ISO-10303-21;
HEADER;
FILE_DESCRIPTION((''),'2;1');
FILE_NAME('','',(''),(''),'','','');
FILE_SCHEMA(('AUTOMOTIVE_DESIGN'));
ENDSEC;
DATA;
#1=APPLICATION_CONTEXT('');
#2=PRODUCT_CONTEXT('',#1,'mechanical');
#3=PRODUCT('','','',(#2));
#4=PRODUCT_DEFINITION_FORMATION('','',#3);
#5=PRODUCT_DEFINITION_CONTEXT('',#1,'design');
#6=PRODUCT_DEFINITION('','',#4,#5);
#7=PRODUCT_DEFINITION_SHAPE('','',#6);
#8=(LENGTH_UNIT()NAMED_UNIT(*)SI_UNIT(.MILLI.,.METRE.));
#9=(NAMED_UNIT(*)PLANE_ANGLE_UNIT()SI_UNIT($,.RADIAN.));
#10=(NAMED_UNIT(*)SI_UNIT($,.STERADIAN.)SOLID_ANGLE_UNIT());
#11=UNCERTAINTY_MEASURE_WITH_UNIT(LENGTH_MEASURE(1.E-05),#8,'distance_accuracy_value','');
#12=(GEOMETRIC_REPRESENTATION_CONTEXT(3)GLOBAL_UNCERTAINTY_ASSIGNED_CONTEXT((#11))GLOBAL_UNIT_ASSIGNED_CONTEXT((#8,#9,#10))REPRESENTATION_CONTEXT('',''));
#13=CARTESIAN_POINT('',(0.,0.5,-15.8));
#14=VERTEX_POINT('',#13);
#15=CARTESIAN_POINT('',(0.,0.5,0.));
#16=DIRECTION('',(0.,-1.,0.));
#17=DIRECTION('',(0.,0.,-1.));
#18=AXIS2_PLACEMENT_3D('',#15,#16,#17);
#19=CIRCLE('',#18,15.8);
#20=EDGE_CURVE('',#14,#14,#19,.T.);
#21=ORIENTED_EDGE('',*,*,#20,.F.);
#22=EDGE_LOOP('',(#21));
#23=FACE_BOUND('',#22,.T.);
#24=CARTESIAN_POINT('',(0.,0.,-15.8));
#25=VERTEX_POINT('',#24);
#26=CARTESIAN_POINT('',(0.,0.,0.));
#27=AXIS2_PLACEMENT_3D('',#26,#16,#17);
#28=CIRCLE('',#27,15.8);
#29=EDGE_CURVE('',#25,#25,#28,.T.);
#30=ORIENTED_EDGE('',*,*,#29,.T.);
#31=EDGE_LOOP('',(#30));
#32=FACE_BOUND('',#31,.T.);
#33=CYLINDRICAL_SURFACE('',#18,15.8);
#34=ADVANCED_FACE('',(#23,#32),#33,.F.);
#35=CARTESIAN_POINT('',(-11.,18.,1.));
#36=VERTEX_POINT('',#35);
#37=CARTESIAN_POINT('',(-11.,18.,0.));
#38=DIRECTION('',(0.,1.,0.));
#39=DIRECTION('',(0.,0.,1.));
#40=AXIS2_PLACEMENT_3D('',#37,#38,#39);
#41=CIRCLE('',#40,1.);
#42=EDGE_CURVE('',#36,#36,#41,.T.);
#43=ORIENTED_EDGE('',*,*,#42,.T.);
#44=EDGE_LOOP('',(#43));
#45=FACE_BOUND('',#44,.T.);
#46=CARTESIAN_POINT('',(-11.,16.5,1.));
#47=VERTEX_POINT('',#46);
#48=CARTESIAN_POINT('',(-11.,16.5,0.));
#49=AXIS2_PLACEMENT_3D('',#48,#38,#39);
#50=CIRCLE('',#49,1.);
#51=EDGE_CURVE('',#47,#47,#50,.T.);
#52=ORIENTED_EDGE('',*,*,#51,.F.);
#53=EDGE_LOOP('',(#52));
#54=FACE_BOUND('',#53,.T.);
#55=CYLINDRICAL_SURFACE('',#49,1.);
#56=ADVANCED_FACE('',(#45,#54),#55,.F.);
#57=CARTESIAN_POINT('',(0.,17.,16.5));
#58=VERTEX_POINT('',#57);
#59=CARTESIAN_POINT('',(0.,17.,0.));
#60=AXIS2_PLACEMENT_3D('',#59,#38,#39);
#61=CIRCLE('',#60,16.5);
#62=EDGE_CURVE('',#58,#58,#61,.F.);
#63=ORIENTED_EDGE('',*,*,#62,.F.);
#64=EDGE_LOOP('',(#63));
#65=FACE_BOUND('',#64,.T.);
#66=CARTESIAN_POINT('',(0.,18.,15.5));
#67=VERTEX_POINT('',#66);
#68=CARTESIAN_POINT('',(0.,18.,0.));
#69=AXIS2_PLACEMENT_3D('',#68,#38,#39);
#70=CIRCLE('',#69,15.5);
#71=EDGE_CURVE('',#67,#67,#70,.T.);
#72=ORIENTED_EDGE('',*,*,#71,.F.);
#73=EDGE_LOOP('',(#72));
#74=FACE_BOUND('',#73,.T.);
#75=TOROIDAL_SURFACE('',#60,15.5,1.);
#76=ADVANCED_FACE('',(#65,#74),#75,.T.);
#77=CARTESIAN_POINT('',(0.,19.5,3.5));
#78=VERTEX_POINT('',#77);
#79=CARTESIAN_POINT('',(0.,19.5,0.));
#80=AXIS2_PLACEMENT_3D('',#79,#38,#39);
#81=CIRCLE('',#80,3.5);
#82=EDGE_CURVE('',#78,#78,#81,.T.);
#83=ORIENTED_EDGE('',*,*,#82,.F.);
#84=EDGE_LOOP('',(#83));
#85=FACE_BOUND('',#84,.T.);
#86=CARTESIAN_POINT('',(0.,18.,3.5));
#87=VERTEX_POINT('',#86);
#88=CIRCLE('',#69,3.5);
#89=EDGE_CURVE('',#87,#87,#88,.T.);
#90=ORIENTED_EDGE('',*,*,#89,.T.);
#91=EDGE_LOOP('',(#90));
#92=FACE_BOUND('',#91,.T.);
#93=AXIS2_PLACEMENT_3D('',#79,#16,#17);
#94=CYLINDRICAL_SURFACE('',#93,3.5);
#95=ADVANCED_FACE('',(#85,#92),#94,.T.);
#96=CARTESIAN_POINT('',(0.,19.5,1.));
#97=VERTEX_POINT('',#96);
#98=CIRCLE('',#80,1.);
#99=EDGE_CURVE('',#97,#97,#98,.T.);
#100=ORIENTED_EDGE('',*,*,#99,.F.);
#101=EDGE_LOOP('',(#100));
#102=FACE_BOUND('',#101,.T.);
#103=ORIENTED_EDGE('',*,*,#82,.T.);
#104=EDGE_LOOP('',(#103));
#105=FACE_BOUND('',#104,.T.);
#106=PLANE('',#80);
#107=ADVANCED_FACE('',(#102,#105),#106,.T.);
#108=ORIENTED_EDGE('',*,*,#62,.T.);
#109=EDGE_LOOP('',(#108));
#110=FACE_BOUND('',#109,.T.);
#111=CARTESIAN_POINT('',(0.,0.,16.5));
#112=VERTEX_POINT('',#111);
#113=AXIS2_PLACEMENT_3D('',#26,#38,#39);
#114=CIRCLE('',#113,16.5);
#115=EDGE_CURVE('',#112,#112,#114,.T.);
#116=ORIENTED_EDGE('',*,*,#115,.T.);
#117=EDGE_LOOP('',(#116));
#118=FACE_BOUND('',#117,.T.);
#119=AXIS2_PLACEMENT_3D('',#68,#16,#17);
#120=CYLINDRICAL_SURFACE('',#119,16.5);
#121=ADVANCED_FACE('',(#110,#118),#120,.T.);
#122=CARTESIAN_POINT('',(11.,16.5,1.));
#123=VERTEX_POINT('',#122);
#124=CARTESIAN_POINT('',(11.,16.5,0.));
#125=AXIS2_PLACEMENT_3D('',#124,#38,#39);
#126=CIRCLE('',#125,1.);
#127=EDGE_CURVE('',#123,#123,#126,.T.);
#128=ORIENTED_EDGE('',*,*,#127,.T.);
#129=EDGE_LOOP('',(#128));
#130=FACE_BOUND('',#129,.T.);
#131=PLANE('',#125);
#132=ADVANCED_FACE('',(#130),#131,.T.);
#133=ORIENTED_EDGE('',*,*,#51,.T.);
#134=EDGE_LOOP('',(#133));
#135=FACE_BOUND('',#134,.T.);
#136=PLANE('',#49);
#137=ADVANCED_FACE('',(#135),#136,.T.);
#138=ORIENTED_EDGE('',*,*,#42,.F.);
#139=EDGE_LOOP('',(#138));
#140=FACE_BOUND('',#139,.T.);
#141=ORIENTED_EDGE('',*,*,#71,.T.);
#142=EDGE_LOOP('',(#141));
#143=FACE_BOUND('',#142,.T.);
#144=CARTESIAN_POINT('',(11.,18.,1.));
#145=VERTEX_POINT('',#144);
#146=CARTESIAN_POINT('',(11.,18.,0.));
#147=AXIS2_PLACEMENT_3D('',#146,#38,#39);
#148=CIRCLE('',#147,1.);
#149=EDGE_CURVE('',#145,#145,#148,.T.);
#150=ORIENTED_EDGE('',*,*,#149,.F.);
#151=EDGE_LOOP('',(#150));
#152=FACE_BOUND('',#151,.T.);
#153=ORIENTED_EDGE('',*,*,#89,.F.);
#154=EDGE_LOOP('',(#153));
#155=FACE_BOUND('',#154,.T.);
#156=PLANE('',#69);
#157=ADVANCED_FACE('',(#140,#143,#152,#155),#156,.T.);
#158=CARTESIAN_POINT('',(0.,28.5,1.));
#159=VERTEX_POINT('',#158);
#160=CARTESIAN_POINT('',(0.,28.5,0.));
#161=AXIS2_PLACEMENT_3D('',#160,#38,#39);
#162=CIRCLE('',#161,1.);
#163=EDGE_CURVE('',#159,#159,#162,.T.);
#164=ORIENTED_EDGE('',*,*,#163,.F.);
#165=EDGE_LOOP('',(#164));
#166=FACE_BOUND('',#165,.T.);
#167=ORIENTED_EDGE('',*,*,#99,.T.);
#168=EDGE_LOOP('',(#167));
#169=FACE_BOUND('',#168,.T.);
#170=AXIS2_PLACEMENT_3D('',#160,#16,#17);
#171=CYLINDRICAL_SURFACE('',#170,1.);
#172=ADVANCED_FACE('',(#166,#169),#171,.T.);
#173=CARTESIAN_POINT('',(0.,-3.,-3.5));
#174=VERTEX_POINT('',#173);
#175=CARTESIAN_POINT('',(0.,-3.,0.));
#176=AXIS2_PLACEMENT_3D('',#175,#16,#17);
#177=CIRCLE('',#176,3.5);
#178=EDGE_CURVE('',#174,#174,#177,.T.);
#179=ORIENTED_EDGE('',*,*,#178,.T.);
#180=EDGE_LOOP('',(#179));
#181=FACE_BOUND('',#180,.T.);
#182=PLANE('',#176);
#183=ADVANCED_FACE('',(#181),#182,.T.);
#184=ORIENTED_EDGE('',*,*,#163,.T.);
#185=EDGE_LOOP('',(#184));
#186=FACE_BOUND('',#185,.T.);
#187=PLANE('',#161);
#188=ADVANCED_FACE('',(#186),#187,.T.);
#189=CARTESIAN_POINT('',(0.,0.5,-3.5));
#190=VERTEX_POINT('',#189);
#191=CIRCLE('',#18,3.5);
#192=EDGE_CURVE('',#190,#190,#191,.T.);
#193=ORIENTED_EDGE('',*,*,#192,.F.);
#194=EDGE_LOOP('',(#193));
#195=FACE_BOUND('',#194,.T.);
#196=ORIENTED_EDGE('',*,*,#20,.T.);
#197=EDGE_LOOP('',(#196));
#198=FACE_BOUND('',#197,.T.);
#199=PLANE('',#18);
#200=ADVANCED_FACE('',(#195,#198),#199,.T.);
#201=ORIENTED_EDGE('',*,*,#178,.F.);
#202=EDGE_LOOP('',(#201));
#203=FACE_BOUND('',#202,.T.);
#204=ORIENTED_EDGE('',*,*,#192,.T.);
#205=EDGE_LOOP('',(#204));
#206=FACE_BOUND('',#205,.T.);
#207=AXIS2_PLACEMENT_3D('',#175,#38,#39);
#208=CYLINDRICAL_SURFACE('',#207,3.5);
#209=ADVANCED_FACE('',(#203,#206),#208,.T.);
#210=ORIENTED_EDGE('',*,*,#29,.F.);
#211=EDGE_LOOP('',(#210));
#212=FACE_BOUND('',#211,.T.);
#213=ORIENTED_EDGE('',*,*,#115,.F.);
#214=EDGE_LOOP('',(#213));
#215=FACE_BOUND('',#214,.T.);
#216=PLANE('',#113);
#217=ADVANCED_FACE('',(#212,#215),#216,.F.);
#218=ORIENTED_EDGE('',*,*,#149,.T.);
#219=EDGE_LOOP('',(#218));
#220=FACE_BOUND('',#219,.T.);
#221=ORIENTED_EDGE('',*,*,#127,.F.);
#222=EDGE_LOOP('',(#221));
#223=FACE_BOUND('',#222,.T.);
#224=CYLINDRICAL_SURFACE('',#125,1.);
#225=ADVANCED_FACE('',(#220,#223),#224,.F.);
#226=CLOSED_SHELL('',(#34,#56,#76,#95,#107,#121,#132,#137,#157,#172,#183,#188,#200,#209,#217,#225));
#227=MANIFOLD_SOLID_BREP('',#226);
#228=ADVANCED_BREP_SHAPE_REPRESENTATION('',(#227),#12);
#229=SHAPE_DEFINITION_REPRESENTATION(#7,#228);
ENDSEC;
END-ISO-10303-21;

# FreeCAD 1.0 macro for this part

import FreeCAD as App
import Part
import Sketcher
from FreeCAD import Vector
Q = App.Units.Quantity


def edges_at(feature, points):
    """Names of the edges that pass closest to the given points."""
    edges = feature.Shape.Edges
    near = lambda p: min(range(len(edges)), key=lambda i: edges[i].distToShape(Part.Vertex(*p))[0])
    return sorted({f"Edge{near(p) + 1}" for p in points})

doc = App.newDocument("Part")
body = doc.addObject("PartDesign::Body", "Body")

sketch1 = body.newObject("Sketcher::SketchObject", "Sketch")
sketch1.AttachmentSupport = (doc.getObject("XZ_Plane"), [""])
sketch1.MapMode = "FlatFace"
sketch1.addGeometry(Part.Circle(Vector(0, 0, 0), Vector(0, 0, 1), 16), False)
sketch1.addConstraint([
    Sketcher.Constraint("Coincident", 0, 3, -1, 1),
    Sketcher.Constraint("Diameter", 0, Q("33 mm")),
])
pad1 = body.newObject("PartDesign::Pad", "Pad")
pad1.Profile = sketch1
pad1.Length = 18
pad1.Reversed = True

sketch2 = body.newObject("Sketcher::SketchObject", "Sketch001")
sketch2.AttachmentSupport = (doc.getObject("XZ_Plane"), [""])
sketch2.MapMode = "FlatFace"
sketch2.AttachmentOffset = App.Placement(Vector(0, 0, -18), App.Rotation())
sketch2.addGeometry(Part.Circle(Vector(0, 0, 0), Vector(0, 0, 1), 3.5), False)
sketch2.addConstraint([
    Sketcher.Constraint("Coincident", 0, 3, -1, 1),
    Sketcher.Constraint("Diameter", 0, Q("7 mm")),
])
pad2 = body.newObject("PartDesign::Pad", "Pad001")
pad2.Profile = sketch2
pad2.Length = 1.5
pad2.Reversed = True

sketch3 = body.newObject("Sketcher::SketchObject", "Sketch002")
sketch3.AttachmentSupport = (doc.getObject("XZ_Plane"), [""])
sketch3.MapMode = "FlatFace"
sketch3.AttachmentOffset = App.Placement(Vector(0, 0, -19.5), App.Rotation())
sketch3.addGeometry(Part.Circle(Vector(0, 0, 0), Vector(0, 0, 1), 1), False)
sketch3.addConstraint([
    Sketcher.Constraint("Coincident", 0, 3, -1, 1),
    Sketcher.Constraint("Diameter", 0, Q("2 mm")),
])
pad3 = body.newObject("PartDesign::Pad", "Pad002")
pad3.Profile = sketch3
pad3.Length = 9
pad3.Reversed = True
doc.recompute()

fillet = body.newObject("PartDesign::Fillet", "Fillet")
fillet.Base = (pad3, edges_at(pad3, [(-16.5, 18, 0)]))
fillet.Radius = 1

sketch4 = body.newObject("Sketcher::SketchObject", "Sketch003")
sketch4.AttachmentSupport = (doc.getObject("XZ_Plane"), [""])
sketch4.MapMode = "FlatFace"
sketch4.AttachmentOffset = App.Placement(Vector(0, 0, -18), App.Rotation())
sketch4.addGeometry([
    Part.Circle(Vector(11, 0, 0), Vector(0, 0, 1), 1),
    Part.Circle(Vector(-11, 0, 0), Vector(0, 0, 1), 1),
], False)
sketch4.addConstraint([
    Sketcher.Constraint("Equal", 0, 1),
    Sketcher.Constraint("Symmetric", 0, 3, 1, 3, -1, 1),
    Sketcher.Constraint("PointOnObject", 0, 3, -1),
    Sketcher.Constraint("Diameter", 0, Q("2 mm")),
    Sketcher.Constraint("DistanceX", -1, 1, 0, 3, Q("11 mm")),
])
pocket1 = body.newObject("PartDesign::Pocket", "Pocket")
pocket1.Profile = sketch4
pocket1.Length = 1.5
pocket1.Reversed = True

sketch5 = body.newObject("Sketcher::SketchObject", "Sketch004")
sketch5.AttachmentSupport = (doc.getObject("XZ_Plane"), [""])
sketch5.MapMode = "FlatFace"
sketch5.addGeometry(Part.Circle(Vector(0, 0, 0), Vector(0, 0, 1), 3.5), False)
sketch5.addConstraint([
    Sketcher.Constraint("Coincident", 0, 3, -1, 1),
    Sketcher.Constraint("Diameter", 0, Q("7 mm")),
])
pad4 = body.newObject("PartDesign::Pad", "Pad003")
pad4.Profile = sketch5
pad4.Length = 3

sketch6 = body.newObject("Sketcher::SketchObject", "Sketch005")
sketch6.AttachmentSupport = (doc.getObject("XZ_Plane"), [""])
sketch6.MapMode = "FlatFace"
sketch6.addGeometry([
    Part.Circle(Vector(0, 0, 0), Vector(0, 0, 1), 15.8),
    Part.Circle(Vector(0, 0, 0), Vector(0, 0, 1), 3.5),
], False)
sketch6.addConstraint([
    Sketcher.Constraint("Coincident", 0, 3, -1, 1),
    Sketcher.Constraint("Coincident", 1, 3, -1, 1),
    Sketcher.Constraint("Diameter", 1, Q("7 mm")),
    Sketcher.Constraint("Diameter", 0, Q("31.6 mm")),
])
pocket2 = body.newObject("PartDesign::Pocket", "Pocket001")
pocket2.Profile = sketch6
pocket2.Length = 0.5

doc.recompute()
